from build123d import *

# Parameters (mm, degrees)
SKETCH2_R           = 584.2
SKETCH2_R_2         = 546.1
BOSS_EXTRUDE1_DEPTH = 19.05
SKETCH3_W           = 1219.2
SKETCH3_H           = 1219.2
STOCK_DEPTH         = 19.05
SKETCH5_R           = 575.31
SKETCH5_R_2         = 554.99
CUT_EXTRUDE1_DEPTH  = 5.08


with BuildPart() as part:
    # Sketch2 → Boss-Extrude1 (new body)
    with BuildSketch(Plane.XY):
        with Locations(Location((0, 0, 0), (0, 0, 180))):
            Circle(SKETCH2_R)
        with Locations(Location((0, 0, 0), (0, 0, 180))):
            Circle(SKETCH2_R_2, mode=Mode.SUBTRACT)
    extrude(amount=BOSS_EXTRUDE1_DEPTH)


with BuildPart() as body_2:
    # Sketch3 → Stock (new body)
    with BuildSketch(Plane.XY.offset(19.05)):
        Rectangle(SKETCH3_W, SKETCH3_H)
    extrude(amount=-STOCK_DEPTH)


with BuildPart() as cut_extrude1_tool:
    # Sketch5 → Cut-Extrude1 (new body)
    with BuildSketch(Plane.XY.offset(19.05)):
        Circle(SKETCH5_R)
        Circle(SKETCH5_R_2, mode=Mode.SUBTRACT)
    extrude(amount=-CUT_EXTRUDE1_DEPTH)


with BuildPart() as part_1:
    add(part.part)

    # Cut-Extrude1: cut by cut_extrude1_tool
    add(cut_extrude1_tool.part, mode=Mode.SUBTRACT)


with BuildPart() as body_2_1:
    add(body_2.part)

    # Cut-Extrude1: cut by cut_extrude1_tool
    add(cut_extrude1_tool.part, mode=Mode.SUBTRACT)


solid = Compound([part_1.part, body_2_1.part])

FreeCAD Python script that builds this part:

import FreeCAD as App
import Part
import Sketcher
Q = App.Units.Quantity


def add_polygon(sketch, points):
    """Adds a closed chain of lines whose ends are joined by coincident constraints."""
    first, n = sketch.GeometryCount, len(points)
    for a, b in zip(points, points[1:] + points[:1]):
        sketch.addGeometry(Part.LineSegment(App.Vector(*a, 0), App.Vector(*b, 0)), False)
    for i in range(n):
        sketch.addConstraint(Sketcher.Constraint("Coincident", first + i, 2, first + (i + 1) % n, 1))

doc = App.newDocument("Part")
body = doc.addObject("PartDesign::Body", "Body")

# Sketch on XY plane
sketch1 = body.newObject("Sketcher::SketchObject", "Sketch")
sketch1.AttachmentSupport = (doc.getObject("XY_Plane"), [""])
sketch1.MapMode = "FlatFace"
sketch1.addGeometry(Part.Circle(App.Vector(0, 0, 0), App.Vector(0, 0, 1), 584), False)
sketch1.addGeometry(Part.Circle(App.Vector(0, 0, 0), App.Vector(0, 0, 1), 546), False)
sketch1.addConstraint(Sketcher.Constraint("Coincident", 0, 3, -1, 1))
sketch1.addConstraint(Sketcher.Constraint("Coincident", 1, 3, -1, 1))
sketch1.addConstraint(Sketcher.Constraint("Diameter", 0, Q("46 in")))
sketch1.addConstraint(Sketcher.Constraint("Diameter", 1, Q("43 in")))
pad1 = body.newObject("PartDesign::Pad", "Pad")
pad1.Profile = sketch1
pad1.Length = Q("0.75 in")
body2 = doc.addObject("PartDesign::Body", "Body001")

# Sketch on XY plane
sketch2 = body2.newObject("Sketcher::SketchObject", "Sketch001")
sketch2.AttachmentSupport = (doc.getObject("XY_Plane001"), [""])
sketch2.MapMode = "FlatFace"
sketch2.AttachmentOffset = App.Placement(App.Vector(0, 0, 0.75 * 25.4), App.Rotation())
add_polygon(sketch2, [(-610, 610), (-610, -610), (610, -610), (610, 610)])  # lines 0-3
sketch2.addConstraint(Sketcher.Constraint("Vertical", 0))
sketch2.addConstraint(Sketcher.Constraint("Horizontal", 1))
sketch2.addConstraint(Sketcher.Constraint("Vertical", 2))
sketch2.addConstraint(Sketcher.Constraint("Horizontal", 3))
sketch2.addConstraint(Sketcher.Constraint("Symmetric", 0, 2, 2, 2, -1, 1))
sketch2.addConstraint(Sketcher.Constraint("Equal", 3, 0))
sketch2.addConstraint(Sketcher.Constraint("DistanceX", 1, 1, 1, 2, Q("48 in")))
pad2 = body2.newObject("PartDesign::Pad", "Pad001")
pad2.Profile = sketch2
pad2.Length = Q("0.75 in")
pad2.Reversed = True
body3 = doc.addObject("PartDesign::Body", "Body002")

# Sketch on XY plane
sketch3 = body3.newObject("Sketcher::SketchObject", "Sketch002")
sketch3.AttachmentSupport = (doc.getObject("XY_Plane002"), [""])
sketch3.MapMode = "FlatFace"
sketch3.AttachmentOffset = App.Placement(App.Vector(0, 0, 0.75 * 25.4), App.Rotation())
sketch3.addGeometry(Part.Circle(App.Vector(0, 0, 0), App.Vector(0, 0, 1), 575), False)
sketch3.addGeometry(Part.Circle(App.Vector(0, 0, 0), App.Vector(0, 0, 1), 555), False)
sketch3.addConstraint(Sketcher.Constraint("Coincident", 0, 3, -1, 1))
sketch3.addConstraint(Sketcher.Constraint("Coincident", 1, 3, -1, 1))
sketch3.addConstraint(Sketcher.Constraint("Diameter", 0, Q("45.3 in")))
sketch3.addConstraint(Sketcher.Constraint("Diameter", 1, Q("43.7 in")))
pad3 = body3.newObject("PartDesign::Pad", "Pad002")
pad3.Profile = sketch3
pad3.Length = Q("0.2 in")
pad3.Reversed = True
doc.recompute()

body4 = doc.addObject("PartDesign::Body", "Body003")
body4.BaseFeature = body3
boolean = body.newObject("PartDesign::Boolean", "Boolean")
boolean.Type = "Cut"
boolean.addObjects([body4])
doc.recompute()

boolean2 = body2.newObject("PartDesign::Boolean", "Boolean001")
boolean2.Type = "Cut"
boolean2.addObjects([body3])

doc.recompute()
